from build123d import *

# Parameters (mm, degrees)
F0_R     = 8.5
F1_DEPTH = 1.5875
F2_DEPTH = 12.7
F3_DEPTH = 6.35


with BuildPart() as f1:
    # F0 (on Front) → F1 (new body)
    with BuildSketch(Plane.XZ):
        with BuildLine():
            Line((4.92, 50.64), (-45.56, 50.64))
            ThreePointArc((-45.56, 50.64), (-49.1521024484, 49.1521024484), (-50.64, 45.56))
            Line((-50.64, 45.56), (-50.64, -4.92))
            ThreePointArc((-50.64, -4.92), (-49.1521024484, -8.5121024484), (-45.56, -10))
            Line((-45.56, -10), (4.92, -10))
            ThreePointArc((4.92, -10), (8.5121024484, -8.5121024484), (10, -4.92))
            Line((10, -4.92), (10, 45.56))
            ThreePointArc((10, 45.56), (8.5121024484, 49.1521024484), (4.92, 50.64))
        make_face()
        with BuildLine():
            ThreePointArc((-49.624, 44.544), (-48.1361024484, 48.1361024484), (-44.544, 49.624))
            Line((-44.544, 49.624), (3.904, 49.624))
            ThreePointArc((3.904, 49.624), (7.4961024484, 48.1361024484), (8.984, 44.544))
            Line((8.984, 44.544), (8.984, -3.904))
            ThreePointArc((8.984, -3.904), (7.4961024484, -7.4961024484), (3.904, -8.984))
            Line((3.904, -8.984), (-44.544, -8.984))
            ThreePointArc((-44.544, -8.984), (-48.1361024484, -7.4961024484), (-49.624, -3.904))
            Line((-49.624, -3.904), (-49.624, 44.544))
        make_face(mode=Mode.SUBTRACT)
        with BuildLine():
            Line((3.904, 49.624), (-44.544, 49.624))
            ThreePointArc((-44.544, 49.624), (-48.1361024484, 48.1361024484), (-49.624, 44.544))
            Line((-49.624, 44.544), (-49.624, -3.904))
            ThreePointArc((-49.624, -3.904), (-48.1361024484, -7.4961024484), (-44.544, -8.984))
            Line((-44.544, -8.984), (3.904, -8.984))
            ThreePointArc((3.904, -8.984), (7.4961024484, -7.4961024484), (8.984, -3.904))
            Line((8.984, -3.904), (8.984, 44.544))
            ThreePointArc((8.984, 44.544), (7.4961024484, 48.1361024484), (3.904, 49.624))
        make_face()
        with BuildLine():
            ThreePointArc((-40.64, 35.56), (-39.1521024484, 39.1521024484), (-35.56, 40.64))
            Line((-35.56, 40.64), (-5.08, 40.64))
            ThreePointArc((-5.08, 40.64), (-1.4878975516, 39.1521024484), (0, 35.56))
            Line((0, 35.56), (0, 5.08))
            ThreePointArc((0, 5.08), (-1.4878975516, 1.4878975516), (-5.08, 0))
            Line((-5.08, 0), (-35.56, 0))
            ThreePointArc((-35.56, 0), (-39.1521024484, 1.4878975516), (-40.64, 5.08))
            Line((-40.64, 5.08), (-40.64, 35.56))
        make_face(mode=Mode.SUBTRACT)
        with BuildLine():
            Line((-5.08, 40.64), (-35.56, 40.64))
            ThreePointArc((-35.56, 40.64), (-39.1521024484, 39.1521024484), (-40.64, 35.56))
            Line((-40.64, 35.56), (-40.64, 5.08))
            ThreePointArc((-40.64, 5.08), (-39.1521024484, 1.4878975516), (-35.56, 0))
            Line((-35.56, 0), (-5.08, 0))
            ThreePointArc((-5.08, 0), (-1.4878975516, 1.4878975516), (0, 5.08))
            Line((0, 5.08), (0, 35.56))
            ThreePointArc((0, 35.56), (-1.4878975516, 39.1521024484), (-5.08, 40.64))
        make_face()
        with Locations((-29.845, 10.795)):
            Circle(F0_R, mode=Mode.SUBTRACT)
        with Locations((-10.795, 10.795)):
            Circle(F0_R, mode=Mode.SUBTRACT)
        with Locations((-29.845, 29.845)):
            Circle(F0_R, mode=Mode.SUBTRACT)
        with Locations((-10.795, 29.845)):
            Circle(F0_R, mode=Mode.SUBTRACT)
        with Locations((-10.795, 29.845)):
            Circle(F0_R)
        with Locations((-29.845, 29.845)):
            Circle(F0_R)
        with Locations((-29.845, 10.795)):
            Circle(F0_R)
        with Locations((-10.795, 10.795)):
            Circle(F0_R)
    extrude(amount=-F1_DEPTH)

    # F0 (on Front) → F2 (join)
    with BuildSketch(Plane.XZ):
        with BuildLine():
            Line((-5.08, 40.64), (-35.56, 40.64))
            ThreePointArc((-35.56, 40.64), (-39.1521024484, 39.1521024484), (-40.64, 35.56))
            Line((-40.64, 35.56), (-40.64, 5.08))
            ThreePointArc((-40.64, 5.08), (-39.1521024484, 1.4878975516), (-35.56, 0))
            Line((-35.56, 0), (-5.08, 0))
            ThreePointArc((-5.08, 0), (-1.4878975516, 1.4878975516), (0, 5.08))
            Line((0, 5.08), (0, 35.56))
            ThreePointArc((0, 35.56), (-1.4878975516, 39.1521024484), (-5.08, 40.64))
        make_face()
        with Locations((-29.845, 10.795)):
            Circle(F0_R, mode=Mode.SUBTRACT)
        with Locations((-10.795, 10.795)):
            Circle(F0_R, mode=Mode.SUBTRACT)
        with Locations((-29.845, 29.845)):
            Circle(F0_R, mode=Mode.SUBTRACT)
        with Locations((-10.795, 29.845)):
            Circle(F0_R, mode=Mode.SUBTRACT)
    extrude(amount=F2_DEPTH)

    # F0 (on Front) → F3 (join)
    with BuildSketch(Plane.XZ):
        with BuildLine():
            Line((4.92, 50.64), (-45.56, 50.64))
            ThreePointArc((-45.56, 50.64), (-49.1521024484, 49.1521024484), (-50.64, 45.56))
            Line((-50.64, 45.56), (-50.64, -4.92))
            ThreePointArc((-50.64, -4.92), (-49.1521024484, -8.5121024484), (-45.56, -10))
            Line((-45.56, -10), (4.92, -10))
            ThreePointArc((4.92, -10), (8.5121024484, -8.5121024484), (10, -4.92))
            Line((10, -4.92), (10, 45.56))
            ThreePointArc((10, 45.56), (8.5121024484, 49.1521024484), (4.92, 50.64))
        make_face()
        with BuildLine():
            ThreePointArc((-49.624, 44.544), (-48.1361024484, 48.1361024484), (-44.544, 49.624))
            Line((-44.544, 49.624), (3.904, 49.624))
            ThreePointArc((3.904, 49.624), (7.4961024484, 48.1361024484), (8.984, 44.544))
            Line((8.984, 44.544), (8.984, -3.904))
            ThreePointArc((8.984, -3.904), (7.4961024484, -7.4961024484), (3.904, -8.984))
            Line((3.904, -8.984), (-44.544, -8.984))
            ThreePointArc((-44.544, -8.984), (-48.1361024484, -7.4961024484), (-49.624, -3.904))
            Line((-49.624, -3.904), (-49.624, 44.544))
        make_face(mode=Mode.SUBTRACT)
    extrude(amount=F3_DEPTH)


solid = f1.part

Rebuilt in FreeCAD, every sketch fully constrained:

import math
import FreeCAD as App
import Part
import Sketcher
from FreeCAD import Vector
Q = App.Units.Quantity

doc = App.newDocument("Part")
body = doc.addObject("PartDesign::Body", "Body")

sketch1 = body.newObject("Sketcher::SketchObject", "Sketch")
sketch1.AttachmentSupport = (doc.getObject("XZ_Plane"), [""])
sketch1.MapMode = "FlatFace"
sketch1.addGeometry([
    Part.LineSegment(Vector(5, 51, 0), Vector(-46, 51, 0)),
    Part.ArcOfCircle(Part.Circle(Vector(-46, 46, 0), Vector(0, 0, 1), 5), math.radians(90), math.radians(180)),
    Part.LineSegment(Vector(-51, 46, 0), Vector(-51, -5, 0)),
    Part.ArcOfCircle(Part.Circle(Vector(-46, -5, 0), Vector(0, 0, 1), 5), math.radians(180), math.radians(270)),
    Part.LineSegment(Vector(-46, -10, 0), Vector(5, -10, 0)),
    Part.ArcOfCircle(Part.Circle(Vector(5, -5, 0), Vector(0, 0, 1), 5), math.radians(-90), math.radians(0)),
    Part.LineSegment(Vector(10, -5, 0), Vector(10, 46, 0)),
    Part.ArcOfCircle(Part.Circle(Vector(5, 46, 0), Vector(0, 0, 1), 5), math.radians(0), math.radians(90)),
], False)
sketch1.addConstraint([
    Sketcher.Constraint("Tangent", 0, 2, 1, 1),
    Sketcher.Constraint("Tangent", 1, 2, 2, 1),
    Sketcher.Constraint("Tangent", 2, 2, 3, 1),
    Sketcher.Constraint("Tangent", 3, 2, 4, 1),
    Sketcher.Constraint("Tangent", 4, 2, 5, 1),
    Sketcher.Constraint("Tangent", 5, 2, 6, 1),
    Sketcher.Constraint("Tangent", 6, 2, 7, 1),
    Sketcher.Constraint("Tangent", 7, 2, 0, 1),
    Sketcher.Constraint("Horizontal", 0),
    Sketcher.Constraint("Vertical", 2),
    Sketcher.Constraint("Horizontal", 4),
    Sketcher.Constraint("Vertical", 6),
    Sketcher.Constraint("Equal", 1, 3),
    Sketcher.Constraint("Equal", 3, 5),
    Sketcher.Constraint("Equal", 5, 7),
    Sketcher.Constraint("Equal", 4, 2),
    Sketcher.Constraint("Radius", 1, Q("0.2 in")),
    Sketcher.Constraint("DistanceX", 0, 2, 0, 1, 50.48),
    Sketcher.Constraint("DistanceX", 1, 3, -1, 1, 45.56),
    Sketcher.Constraint("DistanceY", -1, 1, 1, 3, 45.56),
])
pad1 = body.newObject("PartDesign::Pad", "Pad")
pad1.Profile = sketch1
pad1.Length = Q("0.0625 in")
pad1.Reversed = True

sketch2 = body.newObject("Sketcher::SketchObject", "Sketch001")
sketch2.AttachmentSupport = (doc.getObject("XZ_Plane"), [""])
sketch2.MapMode = "FlatFace"
sketch2.addGeometry([
    Part.LineSegment(Vector(-5, 41, 0), Vector(-36, 41, 0)),
    Part.ArcOfCircle(Part.Circle(Vector(-36, 36, 0), Vector(0, 0, 1), 5), math.radians(90), math.radians(180)),
    Part.LineSegment(Vector(-41, 36, 0), Vector(-41, 5, 0)),
    Part.ArcOfCircle(Part.Circle(Vector(-36, 5, 0), Vector(0, 0, 1), 5), math.radians(180), math.radians(270)),
    Part.LineSegment(Vector(-36, 0, 0), Vector(-5, 0, 0)),
    Part.ArcOfCircle(Part.Circle(Vector(-5, 5, 0), Vector(0, 0, 1), 5), math.radians(-90), math.radians(0)),
    Part.LineSegment(Vector(0, 5, 0), Vector(0, 36, 0)),
    Part.ArcOfCircle(Part.Circle(Vector(-5, 36, 0), Vector(0, 0, 1), 5), math.radians(0), math.radians(90)),
    Part.Circle(Vector(-30, 11, 0), Vector(0, 0, 1), 8),
    Part.Circle(Vector(-11, 11, 0), Vector(0, 0, 1), 8),
    Part.Circle(Vector(-30, 30, 0), Vector(0, 0, 1), 8),
    Part.Circle(Vector(-11, 30, 0), Vector(0, 0, 1), 8),
], False)
sketch2.addConstraint([
    Sketcher.Constraint("Tangent", 0, 2, 1, 1),
    Sketcher.Constraint("Tangent", 1, 2, 2, 1),
    Sketcher.Constraint("Tangent", 2, 2, 3, 1),
    Sketcher.Constraint("Tangent", 3, 2, 4, 1),
    Sketcher.Constraint("Tangent", 4, 2, 5, 1),
    Sketcher.Constraint("Tangent", 5, 2, 6, 1),
    Sketcher.Constraint("Tangent", 6, 2, 7, 1),
    Sketcher.Constraint("Tangent", 7, 2, 0, 1),
    Sketcher.Constraint("Horizontal", 0),
    Sketcher.Constraint("Vertical", 2),
    Sketcher.Constraint("Horizontal", 4),
    Sketcher.Constraint("Vertical", 6),
    Sketcher.Constraint("Equal", 1, 3),
    Sketcher.Constraint("Equal", 3, 5),
    Sketcher.Constraint("Equal", 5, 7),
    Sketcher.Constraint("Equal", 8, 9),
    Sketcher.Constraint("Equal", 9, 10),
    Sketcher.Constraint("Equal", 10, 11),
    Sketcher.Constraint("PointOnObject", 3, 2, -1),
    Sketcher.Constraint("PointOnObject", 5, 2, -2),
    Sketcher.Constraint("Horizontal", 8, 3, 9, 3),
    Sketcher.Constraint("Horizontal", 10, 3, 11, 3),
    Sketcher.Constraint("Vertical", 8, 3, 10, 3),
    Sketcher.Constraint("Vertical", 9, 3, 11, 3),
    Sketcher.Constraint("Equal", 4, 2),
    Sketcher.Constraint("Radius", 1, Q("0.2 in")),
    Sketcher.Constraint("DistanceX", 0, 2, 0, 1, Q("1.2 in")),
    Sketcher.Constraint("Diameter", 8, 17.0),
    Sketcher.Constraint("DistanceX", 8, 3, 9, 3, Q("0.75 in")),
    Sketcher.Constraint("DistanceY", 8, 3, 10, 3, Q("0.75 in")),
    Sketcher.Constraint("DistanceX", 8, 3, -1, 1, Q("1.175 in")),
    Sketcher.Constraint("DistanceY", -1, 1, 8, 3, Q("0.425 in")),
])
pad2 = body.newObject("PartDesign::Pad", "Pad001")
pad2.Profile = sketch2
pad2.Length = Q("0.5 in")

sketch3 = body.newObject("Sketcher::SketchObject", "Sketch002")
sketch3.AttachmentSupport = (doc.getObject("XZ_Plane"), [""])
sketch3.MapMode = "FlatFace"
sketch3.addGeometry([
    Part.LineSegment(Vector(5, 51, 0), Vector(-46, 51, 0)),
    Part.ArcOfCircle(Part.Circle(Vector(-46, 46, 0), Vector(0, 0, 1), 5), math.radians(90), math.radians(180)),
    Part.LineSegment(Vector(-51, 46, 0), Vector(-51, -5, 0)),
    Part.ArcOfCircle(Part.Circle(Vector(-46, -5, 0), Vector(0, 0, 1), 5), math.radians(180), math.radians(270)),
    Part.LineSegment(Vector(-46, -10, 0), Vector(5, -10, 0)),
    Part.ArcOfCircle(Part.Circle(Vector(5, -5, 0), Vector(0, 0, 1), 5), math.radians(-90), math.radians(0)),
    Part.LineSegment(Vector(10, -5, 0), Vector(10, 46, 0)),
    Part.ArcOfCircle(Part.Circle(Vector(5, 46, 0), Vector(0, 0, 1), 5), math.radians(0), math.radians(90)),
    Part.LineSegment(Vector(-50, -4, 0), Vector(-50, 45, 0)),
    Part.ArcOfCircle(Part.Circle(Vector(-45, 45, 0), Vector(0, 0, 1), 5), math.radians(90), math.radians(180)),
    Part.LineSegment(Vector(-45, 50, 0), Vector(4, 50, 0)),
    Part.ArcOfCircle(Part.Circle(Vector(4, 45, 0), Vector(0, 0, 1), 5), math.radians(0), math.radians(90)),
    Part.LineSegment(Vector(9, 45, 0), Vector(9, -4, 0)),
    Part.ArcOfCircle(Part.Circle(Vector(4, -4, 0), Vector(0, 0, 1), 5), math.radians(-90), math.radians(0)),
    Part.LineSegment(Vector(4, -9, 0), Vector(-45, -9, 0)),
    Part.ArcOfCircle(Part.Circle(Vector(-45, -4, 0), Vector(0, 0, 1), 5), math.radians(180), math.radians(270)),
], False)
sketch3.addConstraint([
    Sketcher.Constraint("Tangent", 0, 2, 1, 1),
    Sketcher.Constraint("Tangent", 1, 2, 2, 1),
    Sketcher.Constraint("Tangent", 2, 2, 3, 1),
    Sketcher.Constraint("Tangent", 3, 2, 4, 1),
    Sketcher.Constraint("Tangent", 4, 2, 5, 1),
    Sketcher.Constraint("Tangent", 5, 2, 6, 1),
    Sketcher.Constraint("Tangent", 6, 2, 7, 1),
    Sketcher.Constraint("Tangent", 7, 2, 0, 1),
    Sketcher.Constraint("Tangent", 8, 2, 9, 2),
    Sketcher.Constraint("Tangent", 9, 1, 10, 1),
    Sketcher.Constraint("Tangent", 10, 2, 11, 2),
    Sketcher.Constraint("Tangent", 11, 1, 12, 1),
    Sketcher.Constraint("Tangent", 12, 2, 13, 2),
    Sketcher.Constraint("Tangent", 13, 1, 14, 1),
    Sketcher.Constraint("Tangent", 14, 2, 15, 2),
    Sketcher.Constraint("Tangent", 15, 1, 8, 1),
    Sketcher.Constraint("Horizontal", 0),
    Sketcher.Constraint("Vertical", 2),
    Sketcher.Constraint("Horizontal", 4),
    Sketcher.Constraint("Vertical", 6),
    Sketcher.Constraint("Vertical", 8),
    Sketcher.Constraint("Horizontal", 10),
    Sketcher.Constraint("Vertical", 12),
    Sketcher.Constraint("Horizontal", 14),
    Sketcher.Constraint("Equal", 1, 3),
    Sketcher.Constraint("Equal", 3, 5),
    Sketcher.Constraint("Equal", 5, 7),
    Sketcher.Constraint("Equal", 7, 9),
    Sketcher.Constraint("Equal", 9, 11),
    Sketcher.Constraint("Equal", 11, 13),
    Sketcher.Constraint("Equal", 13, 15),
    Sketcher.Constraint("Equal", 4, 2),
    Sketcher.Constraint("Equal", 14, 8),
    Sketcher.Constraint("Radius", 1, Q("0.2 in")),
    Sketcher.Constraint("DistanceX", 1, 3, 9, 3, Q("0.04 in")),
    Sketcher.Constraint("DistanceY", 9, 3, 1, 3, Q("0.04 in")),
    Sketcher.Constraint("DistanceX", 11, 3, 7, 3, Q("0.04 in")),
    Sketcher.Constraint("DistanceX", 0, 2, 0, 1, 50.48),
    Sketcher.Constraint("DistanceX", 1, 3, -1, 1, 45.56),
    Sketcher.Constraint("DistanceY", -1, 1, 1, 3, 45.56),
])
pad3 = body.newObject("PartDesign::Pad", "Pad002")
pad3.Profile = sketch3
pad3.Length = Q("0.25 in")

doc.recompute()
